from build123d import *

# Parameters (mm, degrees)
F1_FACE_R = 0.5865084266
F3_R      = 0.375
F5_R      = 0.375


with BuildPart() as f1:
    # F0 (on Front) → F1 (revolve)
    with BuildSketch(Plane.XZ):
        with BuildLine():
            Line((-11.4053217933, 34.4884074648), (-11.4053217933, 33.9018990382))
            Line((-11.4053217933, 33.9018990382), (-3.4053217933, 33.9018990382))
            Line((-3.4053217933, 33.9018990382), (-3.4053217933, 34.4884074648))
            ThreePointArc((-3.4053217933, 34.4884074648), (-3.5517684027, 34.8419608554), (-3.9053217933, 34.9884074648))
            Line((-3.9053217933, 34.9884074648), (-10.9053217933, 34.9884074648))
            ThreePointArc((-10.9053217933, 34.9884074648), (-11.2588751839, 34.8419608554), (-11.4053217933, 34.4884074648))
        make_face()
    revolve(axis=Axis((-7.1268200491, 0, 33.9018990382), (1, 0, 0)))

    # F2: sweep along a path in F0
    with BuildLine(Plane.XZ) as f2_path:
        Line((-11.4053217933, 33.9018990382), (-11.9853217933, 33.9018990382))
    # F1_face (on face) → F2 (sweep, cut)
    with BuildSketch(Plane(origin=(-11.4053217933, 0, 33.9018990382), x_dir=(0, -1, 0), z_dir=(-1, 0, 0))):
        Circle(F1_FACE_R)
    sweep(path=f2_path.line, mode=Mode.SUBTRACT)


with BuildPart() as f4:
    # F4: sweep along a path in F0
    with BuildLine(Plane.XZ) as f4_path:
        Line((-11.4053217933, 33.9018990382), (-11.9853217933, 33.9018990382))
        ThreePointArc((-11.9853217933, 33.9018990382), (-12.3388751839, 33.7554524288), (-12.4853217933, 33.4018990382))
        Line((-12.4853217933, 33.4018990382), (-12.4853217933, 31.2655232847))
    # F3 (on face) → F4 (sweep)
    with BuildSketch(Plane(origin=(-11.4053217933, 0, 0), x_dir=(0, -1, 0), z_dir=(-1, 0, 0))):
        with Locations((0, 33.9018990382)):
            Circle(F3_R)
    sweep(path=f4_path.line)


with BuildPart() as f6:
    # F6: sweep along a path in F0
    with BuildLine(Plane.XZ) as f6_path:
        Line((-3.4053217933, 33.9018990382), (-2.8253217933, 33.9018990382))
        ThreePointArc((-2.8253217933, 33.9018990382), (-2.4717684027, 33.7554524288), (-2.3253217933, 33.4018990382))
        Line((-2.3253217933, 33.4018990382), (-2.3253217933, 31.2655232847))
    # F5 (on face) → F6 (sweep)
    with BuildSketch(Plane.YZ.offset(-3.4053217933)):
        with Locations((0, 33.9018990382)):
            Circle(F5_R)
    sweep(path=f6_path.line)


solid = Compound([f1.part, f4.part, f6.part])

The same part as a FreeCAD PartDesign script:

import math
import FreeCAD as App
import Part
import Sketcher
from FreeCAD import Vector

doc = App.newDocument("Part")
body = doc.addObject("PartDesign::Body", "Body")

# Sketch on XZ plane
sketch1 = doc.addObject("Sketcher::SketchObject", "Sketch")
body.addObject(sketch1)
sketch1.AttachmentSupport = (doc.XZ_Plane, [""])
sketch1.MapMode = "FlatFace"
sketch1.addGeometry([
    Part.LineSegment(Vector(-11.4, 34.5, 0), Vector(-11.4, 33.9, 0)),  # 0
    Part.LineSegment(Vector(-11.4, 33.9, 0), Vector(-3.4, 33.9, 0)),  # 1
    Part.LineSegment(Vector(-3.4, 33.9, 0), Vector(-3.4, 34.5, 0)),  # 2
    Part.ArcOfCircle(Part.Circle(Vector(-3.9, 34.5, 0), Vector(0, 0, 1), 0.5), math.radians(0), math.radians(90)),  # 3
    Part.LineSegment(Vector(-3.9, 35, 0), Vector(-10.9, 35, 0)),  # 4
    Part.ArcOfCircle(Part.Circle(Vector(-10.9, 34.5, 0), Vector(0, 0, 1), 0.5), math.radians(90), math.radians(180)),  # 5
], False)
sketch1.addGeometry(Part.LineSegment(Vector(-11.4, 33.9, 0), Vector(-3.4, 33.9, 0)), True)  # axis
sketch1.addConstraint([
    Sketcher.Constraint("Coincident", 0, 2, 1, 1),
    Sketcher.Constraint("Coincident", 1, 2, 2, 1),
    Sketcher.Constraint("Tangent", 2, 2, 3, 1),
    Sketcher.Constraint("Tangent", 3, 2, 4, 1),
    Sketcher.Constraint("Tangent", 4, 2, 5, 1),
    Sketcher.Constraint("Tangent", 5, 2, 0, 1),
    Sketcher.Constraint("Vertical", 0),
    Sketcher.Constraint("Horizontal", 1),
    Sketcher.Constraint("Vertical", 2),
    Sketcher.Constraint("Horizontal", 4),
    Sketcher.Constraint("Horizontal", 6),
    Sketcher.Constraint("Coincident", 6, 1, 0, 2),
    Sketcher.Constraint("Equal", 3, 5),
    Sketcher.Constraint("Vertical", 2, 2, 6, 2),
    Sketcher.Constraint("Radius", 3, 0.5),
    Sketcher.Constraint("DistanceX", 1, 1, 1, 2, 8.0),
    Sketcher.Constraint("DistanceY", 0, 2, 0, 1, 0.586508),
    Sketcher.Constraint("DistanceY", -1, 1, 0, 2, 33.901899),
    Sketcher.Constraint("DistanceX", 3, 3, -1, 1, 3.905322),
])
revolution = doc.addObject("PartDesign::Revolution", "Revolution")
body.addObject(revolution)
revolution.Profile = sketch1
revolution.ReferenceAxis = (sketch1, ["Axis0"])
revolution.Angle = 360

# Sketch on YZ plane
sketch2 = doc.addObject("Sketcher::SketchObject", "Sketch001")
body.addObject(sketch2)
sketch2.AttachmentSupport = (doc.YZ_Plane, [""])
sketch2.MapMode = "FlatFace"
sketch2.AttachmentOffset = App.Placement(Vector(0, 0, -11.405322), App.Rotation())
sketch2.addGeometry(Part.Circle(Vector(0, 33.9, 0), Vector(0, 0, 1), 0.6), False)
sketch2.addConstraint([
    Sketcher.Constraint("PointOnObject", 0, 3, -2),
    Sketcher.Constraint("Diameter", 0, 1.173017),
    Sketcher.Constraint("DistanceY", -1, 1, 0, 3, 33.901899),
])

# Sketch on XY plane
sketch3 = doc.addObject("Sketcher::SketchObject", "Sketch002")
body.addObject(sketch3)
sketch3.AttachmentSupport = (doc.XY_Plane, [""])
sketch3.MapMode = "FlatFace"
sketch3.AttachmentOffset = App.Placement(Vector(0, 0, 33.901899), App.Rotation())
sketch3.addGeometry(Part.LineSegment(Vector(-11.4, 0, 0), Vector(-12, 0, 0)), False)
sketch3.addConstraint([
    Sketcher.Constraint("Horizontal", 0),
    Sketcher.Constraint("PointOnObject", 0, 1, -1),
    Sketcher.Constraint("DistanceX", 0, 2, 0, 1, 0.58),
    Sketcher.Constraint("DistanceX", 0, 1, -1, 1, 11.405322),
])
doc.recompute()

subtractivepipe = doc.addObject("PartDesign::SubtractivePipe", "SubtractivePipe")
body.addObject(subtractivepipe)
subtractivepipe.Profile = sketch2
subtractivepipe.Spine = (sketch3, ["Edge1"])
body2 = doc.addObject("PartDesign::Body", "Body001")

# Sketch on YZ plane
sketch4 = doc.addObject("Sketcher::SketchObject", "Sketch003")
body2.addObject(sketch4)
sketch4.AttachmentSupport = (doc.getObject("YZ_Plane001"), [""])
sketch4.MapMode = "FlatFace"
sketch4.AttachmentOffset = App.Placement(Vector(0, 0, -11.405322), App.Rotation())
sketch4.addGeometry(Part.Circle(Vector(0, 33.9, 0), Vector(0, 0, 1), 0.38), False)
sketch4.addConstraint([
    Sketcher.Constraint("PointOnObject", 0, 3, -2),
    Sketcher.Constraint("Diameter", 0, 0.75),
    Sketcher.Constraint("DistanceY", -1, 1, 0, 3, 33.901899),
])

# Sketch on XZ plane
sketch5 = doc.addObject("Sketcher::SketchObject", "Sketch004")
body2.addObject(sketch5)
sketch5.AttachmentSupport = (doc.getObject("XZ_Plane001"), [""])
sketch5.MapMode = "FlatFace"
sketch5.addGeometry([
    Part.LineSegment(Vector(-11.4, 33.9, 0), Vector(-12, 33.9, 0)),
    Part.ArcOfCircle(Part.Circle(Vector(-12, 33.4, 0), Vector(0, 0, 1), 0.5), math.radians(90), math.radians(180)),
    Part.LineSegment(Vector(-12.5, 33.4, 0), Vector(-12.5, 31.3, 0)),
], False)
sketch5.addConstraint([
    Sketcher.Constraint("Tangent", 0, 2, 1, 1),
    Sketcher.Constraint("Tangent", 1, 2, 2, 1),
    Sketcher.Constraint("Horizontal", 0),
    Sketcher.Constraint("Vertical", 2),
    Sketcher.Constraint("Radius", 1, 0.5),
    Sketcher.Constraint("DistanceX", 0, 2, 0, 1, 0.58),
    Sketcher.Constraint("DistanceY", -1, 1, 1, 3, 33.401899),
    Sketcher.Constraint("DistanceY", 2, 2, 2, 1, 2.136376),
    Sketcher.Constraint("DistanceX", 1, 3, -1, 1, 11.985322),
])
doc.recompute()

additivepipe = doc.addObject("PartDesign::AdditivePipe", "AdditivePipe")
body2.addObject(additivepipe)
additivepipe.Profile = sketch4
additivepipe.Spine = (sketch5, ["Edge1", "Edge2", "Edge3"])
body3 = doc.addObject("PartDesign::Body", "Body002")

# Sketch on YZ plane
sketch6 = doc.addObject("Sketcher::SketchObject", "Sketch005")
body3.addObject(sketch6)
sketch6.AttachmentSupport = (doc.getObject("YZ_Plane002"), [""])
sketch6.MapMode = "FlatFace"
sketch6.AttachmentOffset = App.Placement(Vector(0, 0, -3.405322), App.Rotation())
sketch6.addGeometry(Part.Circle(Vector(0, 33.9, 0), Vector(0, 0, 1), 0.38), False)
sketch6.addConstraint([
    Sketcher.Constraint("PointOnObject", 0, 3, -2),
    Sketcher.Constraint("Diameter", 0, 0.75),
    Sketcher.Constraint("DistanceY", -1, 1, 0, 3, 33.901899),
])

# Sketch on XZ plane
sketch7 = doc.addObject("Sketcher::SketchObject", "Sketch006")
body3.addObject(sketch7)
sketch7.AttachmentSupport = (doc.getObject("XZ_Plane002"), [""])
sketch7.MapMode = "FlatFace"
sketch7.addGeometry([
    Part.LineSegment(Vector(-3.4, 33.9, 0), Vector(-2.8, 33.9, 0)),
    Part.ArcOfCircle(Part.Circle(Vector(-2.8, 33.4, 0), Vector(0, 0, 1), 0.5), math.radians(0), math.radians(90)),
    Part.LineSegment(Vector(-2.3, 33.4, 0), Vector(-2.3, 31.3, 0)),
], False)
sketch7.addConstraint([
    Sketcher.Constraint("Tangent", 0, 2, 1, 2),
    Sketcher.Constraint("Tangent", 1, 1, 2, 1),
    Sketcher.Constraint("Horizontal", 0),
    Sketcher.Constraint("Vertical", 2),
    Sketcher.Constraint("Radius", 1, 0.5),
    Sketcher.Constraint("DistanceX", 0, 1, 0, 2, 0.58),
    Sketcher.Constraint("DistanceY", -1, 1, 1, 3, 33.401899),
    Sketcher.Constraint("DistanceY", 2, 2, 2, 1, 2.136376),
    Sketcher.Constraint("DistanceX", 1, 3, -1, 1, 2.825322),
])
doc.recompute()

additivepipe2 = doc.addObject("PartDesign::AdditivePipe", "AdditivePipe001")
body3.addObject(additivepipe2)
additivepipe2.Profile = sketch6
additivepipe2.Spine = (sketch7, ["Edge1", "Edge2", "Edge3"])

doc.recompute()
